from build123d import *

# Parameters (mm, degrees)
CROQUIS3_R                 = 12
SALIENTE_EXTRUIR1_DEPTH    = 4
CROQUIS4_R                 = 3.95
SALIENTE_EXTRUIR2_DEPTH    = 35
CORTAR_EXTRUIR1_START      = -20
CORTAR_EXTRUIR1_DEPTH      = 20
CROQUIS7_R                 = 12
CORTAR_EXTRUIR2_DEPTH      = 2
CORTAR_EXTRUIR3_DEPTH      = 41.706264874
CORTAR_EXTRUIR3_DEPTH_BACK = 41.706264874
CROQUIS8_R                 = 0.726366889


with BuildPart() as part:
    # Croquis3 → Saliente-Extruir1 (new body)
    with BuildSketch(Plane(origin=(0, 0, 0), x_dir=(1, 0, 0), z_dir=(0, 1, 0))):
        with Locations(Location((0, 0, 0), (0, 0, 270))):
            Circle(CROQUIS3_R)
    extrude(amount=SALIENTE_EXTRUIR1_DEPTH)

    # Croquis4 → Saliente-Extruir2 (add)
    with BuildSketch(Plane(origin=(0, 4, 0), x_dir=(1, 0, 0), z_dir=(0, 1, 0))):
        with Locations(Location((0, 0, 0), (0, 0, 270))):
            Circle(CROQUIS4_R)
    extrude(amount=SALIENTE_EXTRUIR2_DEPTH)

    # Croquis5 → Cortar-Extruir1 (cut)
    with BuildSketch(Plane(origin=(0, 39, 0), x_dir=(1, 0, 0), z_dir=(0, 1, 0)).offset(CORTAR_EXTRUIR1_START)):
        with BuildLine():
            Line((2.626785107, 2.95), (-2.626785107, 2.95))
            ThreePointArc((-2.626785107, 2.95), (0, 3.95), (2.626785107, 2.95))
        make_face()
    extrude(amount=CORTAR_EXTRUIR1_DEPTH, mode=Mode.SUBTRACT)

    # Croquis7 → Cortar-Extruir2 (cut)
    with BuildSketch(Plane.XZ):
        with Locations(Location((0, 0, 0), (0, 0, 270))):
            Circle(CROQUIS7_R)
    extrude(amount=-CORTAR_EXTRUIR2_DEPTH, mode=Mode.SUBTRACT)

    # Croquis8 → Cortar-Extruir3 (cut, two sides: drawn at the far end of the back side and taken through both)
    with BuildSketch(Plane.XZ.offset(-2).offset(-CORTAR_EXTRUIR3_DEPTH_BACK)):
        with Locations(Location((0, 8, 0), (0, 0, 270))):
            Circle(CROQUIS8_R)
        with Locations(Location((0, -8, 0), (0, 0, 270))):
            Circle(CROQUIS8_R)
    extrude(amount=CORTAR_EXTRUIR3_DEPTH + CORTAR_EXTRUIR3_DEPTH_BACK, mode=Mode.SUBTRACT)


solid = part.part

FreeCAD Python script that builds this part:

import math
import FreeCAD as App
import Part
import Sketcher
from FreeCAD import Vector

doc = App.newDocument("Part")
body = doc.addObject("PartDesign::Body", "Body")

# Sketch on XZ plane
sketch1 = body.newObject("Sketcher::SketchObject", "Sketch")
sketch1.AttachmentSupport = (doc.getObject("XZ_Plane"), [""])
sketch1.MapMode = "FlatFace"
sketch1.addGeometry(Part.Circle(Vector(0, 0, 0), Vector(0, 0, 1), 12), False)
sketch1.addConstraint([
    Sketcher.Constraint("Coincident", 0, 3, -1, 1),
    Sketcher.Constraint("Diameter", 0, 24.0),
])
pad1 = body.newObject("PartDesign::Pad", "Pad")
pad1.Profile = sketch1
pad1.Length = 4
pad1.Reversed = True

# Sketch on XZ plane
sketch2 = body.newObject("Sketcher::SketchObject", "Sketch001")
sketch2.AttachmentSupport = (doc.getObject("XZ_Plane"), [""])
sketch2.MapMode = "FlatFace"
sketch2.AttachmentOffset = App.Placement(Vector(0, 0, -4), App.Rotation())
sketch2.addGeometry(Part.Circle(Vector(0, 0, 0), Vector(0, 0, 1), 4), False)
sketch2.addConstraint([
    Sketcher.Constraint("Coincident", 0, 3, -1, 1),
    Sketcher.Constraint("Diameter", 0, 7.9),
])
pad2 = body.newObject("PartDesign::Pad", "Pad001")
pad2.Profile = sketch2
pad2.Length = 35
pad2.Reversed = True

# Sketch on XZ plane
sketch3 = body.newObject("Sketcher::SketchObject", "Sketch002")
sketch3.AttachmentSupport = (doc.getObject("XZ_Plane"), [""])
sketch3.MapMode = "FlatFace"
sketch3.AttachmentOffset = App.Placement(Vector(0, 0, -19), App.Rotation())
sketch3.addGeometry([
    Part.LineSegment(Vector(-2.6, -3, 0), Vector(2.6, -3, 0)),
    Part.ArcOfCircle(Part.Circle(Vector(0, 0, 0), Vector(0, 0, 1), 3.9), math.radians(-132), math.radians(-48)),
], False)
sketch3.addConstraint([
    Sketcher.Constraint("Coincident", 0, 1, 1, 1),
    Sketcher.Constraint("Coincident", 1, 2, 0, 2),
    Sketcher.Constraint("Horizontal", 0),
    Sketcher.Constraint("Coincident", 1, 3, -1, 1),
    Sketcher.Constraint("Radius", 1, 3.95),
    Sketcher.Constraint("DistanceY", 0, 1, -1, 1, 2.95),
])
pocket1 = body.newObject("PartDesign::Pocket", "Pocket")
pocket1.Profile = sketch3
pocket1.Length = 20

# Sketch on XZ plane
sketch4 = body.newObject("Sketcher::SketchObject", "Sketch003")
sketch4.AttachmentSupport = (doc.getObject("XZ_Plane"), [""])
sketch4.MapMode = "FlatFace"
sketch4.addGeometry(Part.Circle(Vector(0, 0, 0), Vector(0, 0, 1), 12), False)
sketch4.addConstraint([
    Sketcher.Constraint("Coincident", 0, 3, -1, 1),
    Sketcher.Constraint("Diameter", 0, 24.0),
])
pocket2 = body.newObject("PartDesign::Pocket", "Pocket001")
pocket2.Profile = sketch4
pocket2.Length = 2

# Sketch on XZ plane
sketch5 = body.newObject("Sketcher::SketchObject", "Sketch004")
sketch5.AttachmentSupport = (doc.getObject("XZ_Plane"), [""])
sketch5.MapMode = "FlatFace"
sketch5.AttachmentOffset = App.Placement(Vector(0, 0, -2), App.Rotation())
sketch5.addGeometry([
    Part.Circle(Vector(0, 8, 0), Vector(0, 0, 1), 0.7),
    Part.Circle(Vector(0, -8, 0), Vector(0, 0, 1), 0.7),
], False)
sketch5.addConstraint([
    Sketcher.Constraint("Equal", 0, 1),
    Sketcher.Constraint("Symmetric", 0, 3, 1, 3, -1, 1),
    Sketcher.Constraint("PointOnObject", 0, 3, -2),
    Sketcher.Constraint("DistanceY", -1, 1, 0, 3, 8.0),
    Sketcher.Constraint("Diameter", 0, 1.452734),
])
pocket3 = body.newObject("PartDesign::Pocket", "Pocket002")
pocket3.Profile = sketch5
pocket3.Type = "ThroughAll"
pocket3.Midplane = True

doc.recompute()
